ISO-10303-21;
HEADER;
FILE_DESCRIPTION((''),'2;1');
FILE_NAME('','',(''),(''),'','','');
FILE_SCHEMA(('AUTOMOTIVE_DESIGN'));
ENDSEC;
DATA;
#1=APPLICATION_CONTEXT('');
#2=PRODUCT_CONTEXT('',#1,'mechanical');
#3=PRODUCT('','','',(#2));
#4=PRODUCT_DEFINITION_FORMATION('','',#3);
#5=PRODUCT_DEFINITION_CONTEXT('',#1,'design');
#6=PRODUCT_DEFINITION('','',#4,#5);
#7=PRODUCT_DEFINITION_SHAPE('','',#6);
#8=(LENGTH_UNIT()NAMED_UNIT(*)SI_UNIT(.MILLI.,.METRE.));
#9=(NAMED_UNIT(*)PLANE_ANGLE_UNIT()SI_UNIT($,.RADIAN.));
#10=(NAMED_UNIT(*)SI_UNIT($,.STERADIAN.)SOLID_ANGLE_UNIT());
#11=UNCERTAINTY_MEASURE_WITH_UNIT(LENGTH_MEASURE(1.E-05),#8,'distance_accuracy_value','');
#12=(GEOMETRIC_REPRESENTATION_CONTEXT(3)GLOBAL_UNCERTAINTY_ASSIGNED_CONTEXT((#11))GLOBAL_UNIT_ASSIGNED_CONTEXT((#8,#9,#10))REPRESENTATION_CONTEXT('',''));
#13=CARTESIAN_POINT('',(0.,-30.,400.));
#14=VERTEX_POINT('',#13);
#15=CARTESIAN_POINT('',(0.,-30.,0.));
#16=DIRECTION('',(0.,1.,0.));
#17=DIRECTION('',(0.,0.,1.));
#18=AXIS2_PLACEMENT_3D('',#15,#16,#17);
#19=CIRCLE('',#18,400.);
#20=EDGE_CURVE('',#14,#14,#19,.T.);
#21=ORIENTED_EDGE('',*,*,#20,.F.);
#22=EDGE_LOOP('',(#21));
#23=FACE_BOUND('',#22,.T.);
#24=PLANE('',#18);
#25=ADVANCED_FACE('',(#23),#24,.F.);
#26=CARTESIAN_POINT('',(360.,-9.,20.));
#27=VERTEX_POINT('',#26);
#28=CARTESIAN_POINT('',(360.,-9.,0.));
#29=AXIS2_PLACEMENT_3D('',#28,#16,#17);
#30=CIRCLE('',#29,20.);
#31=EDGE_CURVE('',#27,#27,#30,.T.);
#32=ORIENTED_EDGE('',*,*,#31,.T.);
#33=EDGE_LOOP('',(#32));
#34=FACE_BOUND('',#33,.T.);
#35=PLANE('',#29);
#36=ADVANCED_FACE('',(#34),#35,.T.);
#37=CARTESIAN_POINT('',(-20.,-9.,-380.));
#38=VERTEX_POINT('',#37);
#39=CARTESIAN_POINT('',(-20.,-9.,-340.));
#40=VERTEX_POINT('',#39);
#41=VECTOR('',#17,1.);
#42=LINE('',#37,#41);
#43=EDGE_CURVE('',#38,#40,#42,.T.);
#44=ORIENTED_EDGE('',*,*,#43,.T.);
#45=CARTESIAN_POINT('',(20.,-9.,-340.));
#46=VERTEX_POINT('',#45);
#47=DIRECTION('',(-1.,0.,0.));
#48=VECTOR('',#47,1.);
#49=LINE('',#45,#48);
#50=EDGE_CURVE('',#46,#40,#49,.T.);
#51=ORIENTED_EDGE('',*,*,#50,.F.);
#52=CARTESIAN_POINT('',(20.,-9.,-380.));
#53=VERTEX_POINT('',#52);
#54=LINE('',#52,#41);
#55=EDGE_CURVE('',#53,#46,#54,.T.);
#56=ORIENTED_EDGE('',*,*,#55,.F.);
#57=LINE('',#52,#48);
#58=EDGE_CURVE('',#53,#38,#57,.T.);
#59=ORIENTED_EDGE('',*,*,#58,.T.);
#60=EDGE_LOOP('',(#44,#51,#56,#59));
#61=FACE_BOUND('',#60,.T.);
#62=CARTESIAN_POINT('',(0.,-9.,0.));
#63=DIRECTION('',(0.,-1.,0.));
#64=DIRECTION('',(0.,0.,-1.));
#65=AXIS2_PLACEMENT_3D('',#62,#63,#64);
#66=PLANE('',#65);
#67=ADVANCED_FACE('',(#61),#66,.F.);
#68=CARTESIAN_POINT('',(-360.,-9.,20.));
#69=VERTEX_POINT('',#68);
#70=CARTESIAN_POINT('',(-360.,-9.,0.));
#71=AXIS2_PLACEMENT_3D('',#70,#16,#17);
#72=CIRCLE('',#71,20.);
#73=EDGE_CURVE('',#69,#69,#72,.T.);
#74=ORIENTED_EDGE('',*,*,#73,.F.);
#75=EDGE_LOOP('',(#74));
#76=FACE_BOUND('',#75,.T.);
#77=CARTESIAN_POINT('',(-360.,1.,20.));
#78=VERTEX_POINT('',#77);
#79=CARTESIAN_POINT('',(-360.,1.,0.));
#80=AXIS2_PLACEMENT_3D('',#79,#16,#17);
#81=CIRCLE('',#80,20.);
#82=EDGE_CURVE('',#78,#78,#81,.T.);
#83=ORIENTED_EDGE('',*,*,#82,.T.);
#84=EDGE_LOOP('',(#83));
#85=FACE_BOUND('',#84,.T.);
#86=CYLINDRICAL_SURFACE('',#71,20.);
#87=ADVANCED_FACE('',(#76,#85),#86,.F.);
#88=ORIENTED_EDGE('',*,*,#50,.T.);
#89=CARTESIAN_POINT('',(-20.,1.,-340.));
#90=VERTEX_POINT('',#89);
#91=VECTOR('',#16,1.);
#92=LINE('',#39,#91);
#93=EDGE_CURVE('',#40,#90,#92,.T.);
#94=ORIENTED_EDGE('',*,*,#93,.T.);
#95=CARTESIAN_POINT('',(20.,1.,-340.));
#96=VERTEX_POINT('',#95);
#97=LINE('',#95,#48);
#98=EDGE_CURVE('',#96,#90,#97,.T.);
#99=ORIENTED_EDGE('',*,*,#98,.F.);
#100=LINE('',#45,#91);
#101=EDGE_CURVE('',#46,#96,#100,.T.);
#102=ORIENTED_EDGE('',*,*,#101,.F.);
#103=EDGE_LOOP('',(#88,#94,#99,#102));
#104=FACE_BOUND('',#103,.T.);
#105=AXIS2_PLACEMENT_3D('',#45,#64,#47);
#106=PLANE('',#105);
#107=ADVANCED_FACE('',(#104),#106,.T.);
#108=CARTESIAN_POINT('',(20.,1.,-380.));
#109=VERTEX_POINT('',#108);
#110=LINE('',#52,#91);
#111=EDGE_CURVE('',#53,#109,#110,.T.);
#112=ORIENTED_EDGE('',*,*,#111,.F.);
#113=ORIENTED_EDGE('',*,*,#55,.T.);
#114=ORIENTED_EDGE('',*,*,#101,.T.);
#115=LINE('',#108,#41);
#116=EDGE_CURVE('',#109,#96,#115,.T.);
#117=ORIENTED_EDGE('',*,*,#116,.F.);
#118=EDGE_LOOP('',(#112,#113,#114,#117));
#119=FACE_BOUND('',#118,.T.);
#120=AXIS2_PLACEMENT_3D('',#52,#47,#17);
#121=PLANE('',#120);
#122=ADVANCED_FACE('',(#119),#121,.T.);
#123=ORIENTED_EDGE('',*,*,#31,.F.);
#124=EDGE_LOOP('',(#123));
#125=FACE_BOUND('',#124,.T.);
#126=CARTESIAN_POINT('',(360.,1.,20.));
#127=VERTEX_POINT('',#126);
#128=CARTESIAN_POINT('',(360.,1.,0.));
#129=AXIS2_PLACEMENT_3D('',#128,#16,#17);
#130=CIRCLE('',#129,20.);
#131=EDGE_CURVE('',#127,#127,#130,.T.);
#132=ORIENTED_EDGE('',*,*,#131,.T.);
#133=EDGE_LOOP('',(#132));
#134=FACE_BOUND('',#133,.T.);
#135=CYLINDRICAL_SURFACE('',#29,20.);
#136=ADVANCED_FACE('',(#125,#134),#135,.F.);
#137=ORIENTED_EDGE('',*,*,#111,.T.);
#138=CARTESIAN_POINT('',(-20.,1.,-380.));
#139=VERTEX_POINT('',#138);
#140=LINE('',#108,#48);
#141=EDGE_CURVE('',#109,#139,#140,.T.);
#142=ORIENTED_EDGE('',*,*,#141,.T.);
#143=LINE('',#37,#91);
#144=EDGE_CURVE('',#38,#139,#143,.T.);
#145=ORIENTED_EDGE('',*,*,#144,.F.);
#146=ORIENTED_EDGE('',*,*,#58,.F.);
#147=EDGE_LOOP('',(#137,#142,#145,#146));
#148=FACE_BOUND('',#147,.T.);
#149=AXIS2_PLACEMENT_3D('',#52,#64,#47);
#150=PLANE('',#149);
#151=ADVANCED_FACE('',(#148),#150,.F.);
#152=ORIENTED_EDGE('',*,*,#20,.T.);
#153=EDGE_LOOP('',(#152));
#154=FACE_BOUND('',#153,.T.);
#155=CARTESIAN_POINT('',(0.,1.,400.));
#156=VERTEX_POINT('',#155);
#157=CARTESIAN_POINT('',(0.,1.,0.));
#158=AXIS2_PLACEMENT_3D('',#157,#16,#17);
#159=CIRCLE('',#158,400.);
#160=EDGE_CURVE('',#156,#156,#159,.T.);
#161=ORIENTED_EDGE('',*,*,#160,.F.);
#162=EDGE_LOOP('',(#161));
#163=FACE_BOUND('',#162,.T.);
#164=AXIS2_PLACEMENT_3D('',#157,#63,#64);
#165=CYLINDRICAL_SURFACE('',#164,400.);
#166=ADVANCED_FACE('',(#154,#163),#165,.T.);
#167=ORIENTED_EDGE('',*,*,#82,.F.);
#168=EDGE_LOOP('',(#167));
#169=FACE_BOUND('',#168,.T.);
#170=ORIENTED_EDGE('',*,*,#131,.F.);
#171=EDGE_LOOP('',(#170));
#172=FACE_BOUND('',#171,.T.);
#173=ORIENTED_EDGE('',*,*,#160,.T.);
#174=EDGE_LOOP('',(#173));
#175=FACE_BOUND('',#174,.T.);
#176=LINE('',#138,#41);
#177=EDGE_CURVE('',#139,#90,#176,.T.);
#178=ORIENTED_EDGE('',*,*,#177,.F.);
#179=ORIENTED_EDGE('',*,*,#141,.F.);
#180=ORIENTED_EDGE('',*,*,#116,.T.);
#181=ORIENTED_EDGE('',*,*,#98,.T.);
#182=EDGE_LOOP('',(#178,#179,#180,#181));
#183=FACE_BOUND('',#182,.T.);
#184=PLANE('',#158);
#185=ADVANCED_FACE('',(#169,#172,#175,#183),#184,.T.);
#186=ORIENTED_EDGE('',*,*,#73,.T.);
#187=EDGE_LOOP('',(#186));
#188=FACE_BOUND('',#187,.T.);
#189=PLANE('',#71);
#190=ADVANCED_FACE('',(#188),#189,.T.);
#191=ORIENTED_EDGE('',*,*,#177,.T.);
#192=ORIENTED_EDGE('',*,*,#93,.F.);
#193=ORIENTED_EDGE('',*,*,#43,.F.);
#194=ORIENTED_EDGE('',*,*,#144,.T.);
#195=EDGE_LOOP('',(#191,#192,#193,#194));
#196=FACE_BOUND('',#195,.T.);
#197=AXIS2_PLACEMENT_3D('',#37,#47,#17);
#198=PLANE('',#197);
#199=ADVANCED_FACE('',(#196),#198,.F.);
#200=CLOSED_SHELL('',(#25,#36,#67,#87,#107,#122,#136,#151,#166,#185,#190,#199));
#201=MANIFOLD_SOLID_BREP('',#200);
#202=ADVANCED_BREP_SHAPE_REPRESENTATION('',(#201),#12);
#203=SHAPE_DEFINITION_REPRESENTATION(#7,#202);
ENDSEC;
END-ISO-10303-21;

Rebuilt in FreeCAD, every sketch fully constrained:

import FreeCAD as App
import Part
import Sketcher
Q = App.Units.Quantity

doc = App.newDocument("Part")
body = doc.addObject("PartDesign::Body", "Body")

# Sketch on XZ plane
sketch1 = body.newObject("Sketcher::SketchObject", "Sketch")
sketch1.AttachmentSupport = (doc.getObject("XZ_Plane"), [""])
sketch1.MapMode = "FlatFace"
sketch1.addGeometry(Part.Circle(App.Vector(0, 0, 0), App.Vector(0, 0, 1), 400), False)
sketch1.addConstraint([
    Sketcher.Constraint("Coincident", 0, 3, -1, 1),
    Sketcher.Constraint("Diameter", 0, Q("800 mm")),
])
pad1 = body.newObject("PartDesign::Pad", "Pad")
pad1.Profile = sketch1
pad1.Type = "TwoLengths"
pad1.Length = 1
pad1.Length2 = 30
pad1.Reversed = True

# Sketch on XZ plane
sketch2 = body.newObject("Sketcher::SketchObject", "Sketch001")
sketch2.AttachmentSupport = (doc.getObject("XZ_Plane"), [""])
sketch2.MapMode = "FlatFace"
sketch2.AttachmentOffset = App.Placement(App.Vector(0, 0, -1), App.Rotation())
sketch2.addGeometry([
    Part.Circle(App.Vector(-360, 0, 0), App.Vector(0, 0, 1), 20),  # 0
    Part.Circle(App.Vector(360, 0, 0), App.Vector(0, 0, 1), 20),  # 1
    Part.LineSegment(App.Vector(-20, -380, 0), App.Vector(-20, -340, 0)),  # 2
    Part.LineSegment(App.Vector(-20, -340, 0), App.Vector(20, -340, 0)),  # 3
    Part.LineSegment(App.Vector(20, -340, 0), App.Vector(20, -380, 0)),  # 4
    Part.LineSegment(App.Vector(20, -380, 0), App.Vector(-20, -380, 0)),  # 5
], False)
sketch2.addConstraint([
    Sketcher.Constraint("Coincident", 2, 2, 3, 1),
    Sketcher.Constraint("Coincident", 3, 2, 4, 1),
    Sketcher.Constraint("Coincident", 4, 2, 5, 1),
    Sketcher.Constraint("Coincident", 5, 2, 2, 1),
    Sketcher.Constraint("Vertical", 2),
    Sketcher.Constraint("Horizontal", 3),
    Sketcher.Constraint("Vertical", 4),
    Sketcher.Constraint("Horizontal", 5),
    Sketcher.Constraint("Equal", 0, 1),
    Sketcher.Constraint("Symmetric", 0, 3, 1, 3, -1, 1),
    Sketcher.Constraint("PointOnObject", 0, 3, -1),
    Sketcher.Constraint("Equal", 5, 2),
    Sketcher.Constraint("Diameter", 0, Q("40 mm")),
    Sketcher.Constraint("DistanceX", 3, 1, 3, 2, Q("40 mm")),
    Sketcher.Constraint("DistanceX", 0, 3, -1, 1, Q("360 mm")),
    Sketcher.Constraint("DistanceX", 2, 2, -1, 1, Q("20 mm")),
    Sketcher.Constraint("DistanceY", 2, 2, -1, 1, Q("340 mm")),
])
pocket1 = body.newObject("PartDesign::Pocket", "Pocket")
pocket1.Profile = sketch2
pocket1.Length = 10
pocket1.Reversed = True

doc.recompute()
